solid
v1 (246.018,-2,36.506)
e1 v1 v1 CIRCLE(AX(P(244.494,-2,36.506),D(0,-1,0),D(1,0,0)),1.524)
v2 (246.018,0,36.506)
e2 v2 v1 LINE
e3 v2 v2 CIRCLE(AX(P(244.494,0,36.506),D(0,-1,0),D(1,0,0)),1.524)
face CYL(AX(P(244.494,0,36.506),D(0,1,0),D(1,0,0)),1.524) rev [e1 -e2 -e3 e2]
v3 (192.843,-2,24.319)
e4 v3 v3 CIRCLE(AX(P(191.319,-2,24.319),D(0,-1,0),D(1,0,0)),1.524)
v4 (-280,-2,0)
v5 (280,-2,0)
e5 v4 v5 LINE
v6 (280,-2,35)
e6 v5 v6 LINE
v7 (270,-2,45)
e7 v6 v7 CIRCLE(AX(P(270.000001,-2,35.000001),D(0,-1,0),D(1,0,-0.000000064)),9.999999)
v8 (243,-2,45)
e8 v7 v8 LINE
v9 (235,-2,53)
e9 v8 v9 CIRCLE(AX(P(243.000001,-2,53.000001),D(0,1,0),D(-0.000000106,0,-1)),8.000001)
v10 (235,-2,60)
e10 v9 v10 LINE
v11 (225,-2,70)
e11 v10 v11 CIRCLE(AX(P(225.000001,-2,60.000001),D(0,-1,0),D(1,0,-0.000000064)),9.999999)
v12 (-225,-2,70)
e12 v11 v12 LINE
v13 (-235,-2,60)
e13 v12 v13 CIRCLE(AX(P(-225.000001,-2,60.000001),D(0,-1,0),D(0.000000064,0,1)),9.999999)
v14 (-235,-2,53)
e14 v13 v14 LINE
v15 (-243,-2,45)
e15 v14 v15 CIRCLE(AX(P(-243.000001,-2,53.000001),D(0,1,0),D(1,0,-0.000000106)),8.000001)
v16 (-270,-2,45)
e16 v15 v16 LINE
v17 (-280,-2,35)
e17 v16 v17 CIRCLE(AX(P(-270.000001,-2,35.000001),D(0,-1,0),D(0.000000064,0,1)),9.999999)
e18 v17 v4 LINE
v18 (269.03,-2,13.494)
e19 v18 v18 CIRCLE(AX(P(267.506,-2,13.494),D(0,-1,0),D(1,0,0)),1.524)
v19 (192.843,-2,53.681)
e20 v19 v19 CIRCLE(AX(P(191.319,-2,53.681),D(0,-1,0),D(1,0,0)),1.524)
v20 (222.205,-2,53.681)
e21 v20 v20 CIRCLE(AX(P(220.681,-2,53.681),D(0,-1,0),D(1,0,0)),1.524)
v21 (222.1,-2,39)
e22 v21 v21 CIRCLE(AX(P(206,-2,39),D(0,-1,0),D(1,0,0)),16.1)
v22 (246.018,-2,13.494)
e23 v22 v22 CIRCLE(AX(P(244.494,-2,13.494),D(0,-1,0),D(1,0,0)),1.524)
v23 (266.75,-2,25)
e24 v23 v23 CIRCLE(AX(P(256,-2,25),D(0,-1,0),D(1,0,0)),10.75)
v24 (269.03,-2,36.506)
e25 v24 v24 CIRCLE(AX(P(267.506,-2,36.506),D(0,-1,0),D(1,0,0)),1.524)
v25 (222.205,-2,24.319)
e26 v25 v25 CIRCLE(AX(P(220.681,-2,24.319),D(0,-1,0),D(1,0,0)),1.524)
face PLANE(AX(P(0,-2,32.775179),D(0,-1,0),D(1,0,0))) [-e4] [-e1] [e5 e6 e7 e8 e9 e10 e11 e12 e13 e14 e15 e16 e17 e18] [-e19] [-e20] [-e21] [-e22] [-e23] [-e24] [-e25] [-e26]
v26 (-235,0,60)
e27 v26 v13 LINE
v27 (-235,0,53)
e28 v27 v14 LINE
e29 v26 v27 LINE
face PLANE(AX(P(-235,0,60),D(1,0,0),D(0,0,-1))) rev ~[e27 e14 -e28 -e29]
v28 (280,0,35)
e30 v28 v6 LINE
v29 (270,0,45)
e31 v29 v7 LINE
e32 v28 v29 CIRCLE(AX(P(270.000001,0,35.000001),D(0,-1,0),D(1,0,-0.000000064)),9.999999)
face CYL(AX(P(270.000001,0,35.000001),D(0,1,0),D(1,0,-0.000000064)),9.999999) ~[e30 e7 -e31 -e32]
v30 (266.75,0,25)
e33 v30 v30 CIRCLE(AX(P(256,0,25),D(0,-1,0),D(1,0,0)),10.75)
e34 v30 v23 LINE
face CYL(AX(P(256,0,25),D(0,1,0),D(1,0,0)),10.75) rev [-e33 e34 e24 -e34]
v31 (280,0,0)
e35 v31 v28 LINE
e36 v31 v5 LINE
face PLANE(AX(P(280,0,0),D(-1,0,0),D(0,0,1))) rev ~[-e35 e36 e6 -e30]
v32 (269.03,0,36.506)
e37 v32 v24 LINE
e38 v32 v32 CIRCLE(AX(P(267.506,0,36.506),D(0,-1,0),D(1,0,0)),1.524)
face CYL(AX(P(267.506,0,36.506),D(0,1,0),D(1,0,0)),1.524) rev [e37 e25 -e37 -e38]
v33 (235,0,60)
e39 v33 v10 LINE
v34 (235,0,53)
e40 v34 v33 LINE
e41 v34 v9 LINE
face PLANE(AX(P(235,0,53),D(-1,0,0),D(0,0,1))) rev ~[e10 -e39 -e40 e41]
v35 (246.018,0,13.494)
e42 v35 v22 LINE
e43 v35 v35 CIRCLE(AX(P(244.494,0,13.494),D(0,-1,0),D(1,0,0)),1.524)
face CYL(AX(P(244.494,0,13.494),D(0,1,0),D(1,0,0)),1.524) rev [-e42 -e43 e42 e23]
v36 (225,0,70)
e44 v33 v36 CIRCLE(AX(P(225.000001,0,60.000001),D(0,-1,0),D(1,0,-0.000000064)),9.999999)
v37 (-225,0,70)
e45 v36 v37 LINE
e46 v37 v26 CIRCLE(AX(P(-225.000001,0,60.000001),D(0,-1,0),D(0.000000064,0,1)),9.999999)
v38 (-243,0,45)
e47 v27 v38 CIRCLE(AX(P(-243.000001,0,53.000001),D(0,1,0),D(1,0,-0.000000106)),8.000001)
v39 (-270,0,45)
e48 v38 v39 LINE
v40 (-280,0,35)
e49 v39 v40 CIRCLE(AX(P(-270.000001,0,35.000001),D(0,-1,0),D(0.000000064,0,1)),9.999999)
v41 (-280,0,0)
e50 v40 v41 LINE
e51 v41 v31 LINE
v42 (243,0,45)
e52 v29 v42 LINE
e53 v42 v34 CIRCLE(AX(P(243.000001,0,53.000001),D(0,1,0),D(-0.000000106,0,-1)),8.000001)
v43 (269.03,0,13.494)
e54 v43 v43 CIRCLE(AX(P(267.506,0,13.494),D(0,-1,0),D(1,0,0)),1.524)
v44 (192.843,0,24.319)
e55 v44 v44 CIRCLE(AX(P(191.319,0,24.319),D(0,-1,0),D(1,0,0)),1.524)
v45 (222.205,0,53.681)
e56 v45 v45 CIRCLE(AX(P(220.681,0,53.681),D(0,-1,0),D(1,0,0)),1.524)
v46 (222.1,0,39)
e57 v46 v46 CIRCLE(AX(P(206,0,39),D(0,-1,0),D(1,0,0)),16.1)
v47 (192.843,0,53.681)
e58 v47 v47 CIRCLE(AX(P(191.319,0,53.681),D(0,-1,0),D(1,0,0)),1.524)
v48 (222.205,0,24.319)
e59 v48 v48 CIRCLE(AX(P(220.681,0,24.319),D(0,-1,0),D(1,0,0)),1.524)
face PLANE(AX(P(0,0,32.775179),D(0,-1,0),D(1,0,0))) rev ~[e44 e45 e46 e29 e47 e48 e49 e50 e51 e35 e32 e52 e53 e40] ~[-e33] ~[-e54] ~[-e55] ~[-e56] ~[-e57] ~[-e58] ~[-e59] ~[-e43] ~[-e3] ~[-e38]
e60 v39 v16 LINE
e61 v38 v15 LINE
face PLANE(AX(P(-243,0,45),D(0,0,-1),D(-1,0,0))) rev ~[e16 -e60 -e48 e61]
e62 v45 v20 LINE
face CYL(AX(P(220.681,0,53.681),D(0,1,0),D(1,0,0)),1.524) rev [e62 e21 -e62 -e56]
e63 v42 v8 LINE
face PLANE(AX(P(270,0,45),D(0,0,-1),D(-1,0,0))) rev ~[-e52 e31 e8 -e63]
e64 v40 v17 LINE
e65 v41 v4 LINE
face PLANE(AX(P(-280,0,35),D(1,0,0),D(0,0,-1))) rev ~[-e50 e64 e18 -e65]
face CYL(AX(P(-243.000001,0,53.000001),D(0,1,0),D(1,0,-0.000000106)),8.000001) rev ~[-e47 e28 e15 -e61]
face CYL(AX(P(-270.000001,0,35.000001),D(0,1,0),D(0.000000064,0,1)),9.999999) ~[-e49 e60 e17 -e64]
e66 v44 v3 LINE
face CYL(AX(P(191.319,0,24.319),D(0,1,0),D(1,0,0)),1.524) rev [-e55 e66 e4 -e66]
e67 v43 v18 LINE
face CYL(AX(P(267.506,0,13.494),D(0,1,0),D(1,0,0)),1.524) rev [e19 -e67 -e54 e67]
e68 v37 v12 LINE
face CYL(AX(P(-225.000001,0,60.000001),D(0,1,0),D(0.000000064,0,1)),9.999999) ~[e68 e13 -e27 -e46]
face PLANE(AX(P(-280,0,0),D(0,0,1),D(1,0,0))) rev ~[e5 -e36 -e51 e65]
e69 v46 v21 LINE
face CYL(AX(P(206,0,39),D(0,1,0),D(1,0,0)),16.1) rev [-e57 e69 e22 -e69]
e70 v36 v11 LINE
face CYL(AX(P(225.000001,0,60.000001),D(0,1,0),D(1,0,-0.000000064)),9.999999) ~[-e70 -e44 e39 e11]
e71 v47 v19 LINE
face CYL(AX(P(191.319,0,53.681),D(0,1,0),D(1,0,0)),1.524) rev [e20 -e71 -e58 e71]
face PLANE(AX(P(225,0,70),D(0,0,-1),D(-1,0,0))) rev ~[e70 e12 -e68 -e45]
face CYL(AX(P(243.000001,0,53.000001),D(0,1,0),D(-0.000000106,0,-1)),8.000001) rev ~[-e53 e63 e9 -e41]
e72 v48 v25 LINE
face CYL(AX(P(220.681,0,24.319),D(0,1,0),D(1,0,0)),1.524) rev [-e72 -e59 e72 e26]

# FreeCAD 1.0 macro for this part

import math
import FreeCAD as App
import Part
import Sketcher

V = App.Vector

doc = App.newDocument("Part")
params = doc.addObject("Spreadsheet::Sheet", "Params")
for row, (alias, value) in enumerate([
    ("sketch1_radius", "9.999999 mm"),
    ("sketch1_radius2", "8.000001 mm"),
    ("sketch1_diameter", "21.5 mm"),
    ("sketch1_diameter2", "32.2 mm"),
    ("sketch1_width", "560 mm"),
    ("pad1_length", "2 mm"),
], start=1):
    params.set(f"A{row}", alias)
    params.set(f"B{row}", "=" + value)
    params.setAlias(f"B{row}", alias)

body = doc.addObject("PartDesign::Body", "Body")

# Sketch on XZ plane
sketch1 = body.newObject("Sketcher::SketchObject", "Sketch")
sketch1.AttachmentSupport = (doc.getObject("XZ_Plane"), [""])
sketch1.MapMode = "FlatFace"
sketch1.addGeometry([
    Part.LineSegment(V(-280, 0, 0), V(280, 0, 0)),  # 0
    Part.LineSegment(V(280, 0, 0), V(280, 35, 0)),  # 1
    Part.ArcOfCircle(Part.Circle(V(270, 35, 0), V(0, 0, 1), 10), math.radians(0), math.radians(90)),  # 2
    Part.LineSegment(V(270, 45, 0), V(243, 45, 0)),  # 3
    Part.ArcOfCircle(Part.Circle(V(243, 53, 0), V(0, 0, 1), 8), math.radians(-180), math.radians(-90)),  # 4
    Part.LineSegment(V(235, 53, 0), V(235, 60, 0)),  # 5
    Part.ArcOfCircle(Part.Circle(V(225, 60, 0), V(0, 0, 1), 10), math.radians(0), math.radians(90)),  # 6
    Part.LineSegment(V(225, 70, 0), V(-225, 70, 0)),  # 7
    Part.ArcOfCircle(Part.Circle(V(-225, 60, 0), V(0, 0, 1), 10), math.radians(90), math.radians(180)),  # 8
    Part.LineSegment(V(-235, 60, 0), V(-235, 53, 0)),  # 9
    Part.ArcOfCircle(Part.Circle(V(-243, 53, 0), V(0, 0, 1), 8), math.radians(-90), math.radians(0)),  # 10
    Part.LineSegment(V(-243, 45, 0), V(-270, 45, 0)),  # 11
    Part.ArcOfCircle(Part.Circle(V(-270, 35, 0), V(0, 0, 1), 10), math.radians(90), math.radians(180)),  # 12
    Part.LineSegment(V(-280, 35, 0), V(-280, 0, 0)),  # 13
    Part.Circle(V(191.3, 24.3, 0), V(0, 0, 1), 1.5),  # 14
    Part.Circle(V(220.7, 24.3, 0), V(0, 0, 1), 1.5),  # 15
    Part.Circle(V(244.5, 13.5, 0), V(0, 0, 1), 1.5),  # 16
    Part.Circle(V(267.5, 13.5, 0), V(0, 0, 1), 1.5),  # 17
    Part.Circle(V(256, 25, 0), V(0, 0, 1), 10.8),  # 18
    Part.Circle(V(206, 39, 0), V(0, 0, 1), 16.1),  # 19
    Part.Circle(V(191.3, 53.7, 0), V(0, 0, 1), 1.5),  # 20
    Part.Circle(V(220.7, 53.7, 0), V(0, 0, 1), 1.5),  # 21
    Part.Circle(V(244.5, 36.5, 0), V(0, 0, 1), 1.5),  # 22
    Part.Circle(V(267.5, 36.5, 0), V(0, 0, 1), 1.5),  # 23
], False)
sketch1.addConstraint([
    Sketcher.Constraint("Coincident", 0, 2, 1, 1),
    Sketcher.Constraint("Tangent", 1, 2, 2, 1),
    Sketcher.Constraint("Tangent", 2, 2, 3, 1),
    Sketcher.Constraint("Tangent", 3, 2, 4, 2),
    Sketcher.Constraint("Tangent", 4, 1, 5, 1),
    Sketcher.Constraint("Tangent", 5, 2, 6, 1),
    Sketcher.Constraint("Tangent", 6, 2, 7, 1),
    Sketcher.Constraint("Tangent", 7, 2, 8, 1),
    Sketcher.Constraint("Tangent", 8, 2, 9, 1),
    Sketcher.Constraint("Tangent", 9, 2, 10, 2),
    Sketcher.Constraint("Tangent", 10, 1, 11, 1),
    Sketcher.Constraint("Tangent", 11, 2, 12, 1),
    Sketcher.Constraint("Tangent", 12, 2, 13, 1),
    Sketcher.Constraint("Coincident", 13, 2, 0, 1),
    Sketcher.Constraint("Horizontal", 0),
    Sketcher.Constraint("Vertical", 1),
    Sketcher.Constraint("Horizontal", 3),
    Sketcher.Constraint("Vertical", 5),
    Sketcher.Constraint("Horizontal", 7),
    Sketcher.Constraint("Vertical", 9),
    Sketcher.Constraint("Horizontal", 11),
    Sketcher.Constraint("Vertical", 13),
    Sketcher.Constraint("Equal", 2, 6),
    Sketcher.Constraint("Equal", 6, 8),
    Sketcher.Constraint("Equal", 4, 10),
    Sketcher.Constraint("Equal", 8, 12),
    Sketcher.Constraint("Equal", 14, 15),
    Sketcher.Constraint("Equal", 15, 16),
    Sketcher.Constraint("Equal", 16, 17),
    Sketcher.Constraint("Equal", 17, 20),
    Sketcher.Constraint("Equal", 20, 21),
    Sketcher.Constraint("Equal", 21, 22),
    Sketcher.Constraint("Equal", 22, 23),
    Sketcher.Constraint("Symmetric", 0, 2, 13, 2, -1, 1),
    Sketcher.Constraint("Symmetric", 4, 3, 10, 3, -2),
    Sketcher.Constraint("Horizontal", 14, 3, 15, 3),
    Sketcher.Constraint("Horizontal", 16, 3, 17, 3),
    Sketcher.Constraint("Horizontal", 20, 3, 21, 3),
    Sketcher.Constraint("Horizontal", 22, 3, 23, 3),
    Sketcher.Constraint("Vertical", 14, 3, 20, 3),
    Sketcher.Constraint("Vertical", 15, 3, 21, 3),
    Sketcher.Constraint("Vertical", 16, 3, 22, 3),
    Sketcher.Constraint("Vertical", 17, 3, 23, 3),
    Sketcher.Constraint("Radius", 2, 9.999999),
    Sketcher.Constraint("Radius", 4, 8.000001),
    Sketcher.Constraint("Diameter", 18, 21.5),
    Sketcher.Constraint("Diameter", 19, 32.2),
    Sketcher.Constraint("DistanceX", 0, 1, 0, 2, 560.0),
    Sketcher.Constraint("DistanceX", 3, 2, 3, 1, 27.0),
    Sketcher.Constraint("DistanceY", 1, 1, 1, 2, 35.0),
    Sketcher.Constraint("DistanceY", 5, 1, 5, 2, 7.0),
    Sketcher.Constraint("Diameter", 14, 3.048),
    Sketcher.Constraint("DistanceX", -1, 1, 18, 3, 256.0),
    Sketcher.Constraint("DistanceY", -1, 1, 18, 3, 25.0),
    Sketcher.Constraint("DistanceX", -1, 1, 19, 3, 206.0),
    Sketcher.Constraint("DistanceY", -1, 1, 19, 3, 39.0),
    Sketcher.Constraint("DistanceX", -1, 1, 14, 3, 191.319),
    Sketcher.Constraint("DistanceY", -1, 1, 14, 3, 24.319),
    Sketcher.Constraint("DistanceX", -1, 1, 15, 3, 220.681),
    Sketcher.Constraint("DistanceX", -1, 1, 16, 3, 244.494),
    Sketcher.Constraint("DistanceY", -1, 1, 16, 3, 13.494),
    Sketcher.Constraint("DistanceX", -1, 1, 17, 3, 267.506),
    Sketcher.Constraint("DistanceY", -1, 1, 20, 3, 53.681),
    Sketcher.Constraint("DistanceY", -1, 1, 22, 3, 36.506),
])
sketch1.setExpression("Constraints[43]", "Params.sketch1_radius")
sketch1.setExpression("Constraints[44]", "Params.sketch1_radius2")
sketch1.setExpression("Constraints[45]", "Params.sketch1_diameter")
sketch1.setExpression("Constraints[46]", "Params.sketch1_diameter2")
sketch1.setExpression("Constraints[47]", "Params.sketch1_width")
pad1 = body.newObject("PartDesign::Pad", "Pad")
pad1.Profile = sketch1
pad1.setExpression("Length", "Params.pad1_length")

doc.recompute()
